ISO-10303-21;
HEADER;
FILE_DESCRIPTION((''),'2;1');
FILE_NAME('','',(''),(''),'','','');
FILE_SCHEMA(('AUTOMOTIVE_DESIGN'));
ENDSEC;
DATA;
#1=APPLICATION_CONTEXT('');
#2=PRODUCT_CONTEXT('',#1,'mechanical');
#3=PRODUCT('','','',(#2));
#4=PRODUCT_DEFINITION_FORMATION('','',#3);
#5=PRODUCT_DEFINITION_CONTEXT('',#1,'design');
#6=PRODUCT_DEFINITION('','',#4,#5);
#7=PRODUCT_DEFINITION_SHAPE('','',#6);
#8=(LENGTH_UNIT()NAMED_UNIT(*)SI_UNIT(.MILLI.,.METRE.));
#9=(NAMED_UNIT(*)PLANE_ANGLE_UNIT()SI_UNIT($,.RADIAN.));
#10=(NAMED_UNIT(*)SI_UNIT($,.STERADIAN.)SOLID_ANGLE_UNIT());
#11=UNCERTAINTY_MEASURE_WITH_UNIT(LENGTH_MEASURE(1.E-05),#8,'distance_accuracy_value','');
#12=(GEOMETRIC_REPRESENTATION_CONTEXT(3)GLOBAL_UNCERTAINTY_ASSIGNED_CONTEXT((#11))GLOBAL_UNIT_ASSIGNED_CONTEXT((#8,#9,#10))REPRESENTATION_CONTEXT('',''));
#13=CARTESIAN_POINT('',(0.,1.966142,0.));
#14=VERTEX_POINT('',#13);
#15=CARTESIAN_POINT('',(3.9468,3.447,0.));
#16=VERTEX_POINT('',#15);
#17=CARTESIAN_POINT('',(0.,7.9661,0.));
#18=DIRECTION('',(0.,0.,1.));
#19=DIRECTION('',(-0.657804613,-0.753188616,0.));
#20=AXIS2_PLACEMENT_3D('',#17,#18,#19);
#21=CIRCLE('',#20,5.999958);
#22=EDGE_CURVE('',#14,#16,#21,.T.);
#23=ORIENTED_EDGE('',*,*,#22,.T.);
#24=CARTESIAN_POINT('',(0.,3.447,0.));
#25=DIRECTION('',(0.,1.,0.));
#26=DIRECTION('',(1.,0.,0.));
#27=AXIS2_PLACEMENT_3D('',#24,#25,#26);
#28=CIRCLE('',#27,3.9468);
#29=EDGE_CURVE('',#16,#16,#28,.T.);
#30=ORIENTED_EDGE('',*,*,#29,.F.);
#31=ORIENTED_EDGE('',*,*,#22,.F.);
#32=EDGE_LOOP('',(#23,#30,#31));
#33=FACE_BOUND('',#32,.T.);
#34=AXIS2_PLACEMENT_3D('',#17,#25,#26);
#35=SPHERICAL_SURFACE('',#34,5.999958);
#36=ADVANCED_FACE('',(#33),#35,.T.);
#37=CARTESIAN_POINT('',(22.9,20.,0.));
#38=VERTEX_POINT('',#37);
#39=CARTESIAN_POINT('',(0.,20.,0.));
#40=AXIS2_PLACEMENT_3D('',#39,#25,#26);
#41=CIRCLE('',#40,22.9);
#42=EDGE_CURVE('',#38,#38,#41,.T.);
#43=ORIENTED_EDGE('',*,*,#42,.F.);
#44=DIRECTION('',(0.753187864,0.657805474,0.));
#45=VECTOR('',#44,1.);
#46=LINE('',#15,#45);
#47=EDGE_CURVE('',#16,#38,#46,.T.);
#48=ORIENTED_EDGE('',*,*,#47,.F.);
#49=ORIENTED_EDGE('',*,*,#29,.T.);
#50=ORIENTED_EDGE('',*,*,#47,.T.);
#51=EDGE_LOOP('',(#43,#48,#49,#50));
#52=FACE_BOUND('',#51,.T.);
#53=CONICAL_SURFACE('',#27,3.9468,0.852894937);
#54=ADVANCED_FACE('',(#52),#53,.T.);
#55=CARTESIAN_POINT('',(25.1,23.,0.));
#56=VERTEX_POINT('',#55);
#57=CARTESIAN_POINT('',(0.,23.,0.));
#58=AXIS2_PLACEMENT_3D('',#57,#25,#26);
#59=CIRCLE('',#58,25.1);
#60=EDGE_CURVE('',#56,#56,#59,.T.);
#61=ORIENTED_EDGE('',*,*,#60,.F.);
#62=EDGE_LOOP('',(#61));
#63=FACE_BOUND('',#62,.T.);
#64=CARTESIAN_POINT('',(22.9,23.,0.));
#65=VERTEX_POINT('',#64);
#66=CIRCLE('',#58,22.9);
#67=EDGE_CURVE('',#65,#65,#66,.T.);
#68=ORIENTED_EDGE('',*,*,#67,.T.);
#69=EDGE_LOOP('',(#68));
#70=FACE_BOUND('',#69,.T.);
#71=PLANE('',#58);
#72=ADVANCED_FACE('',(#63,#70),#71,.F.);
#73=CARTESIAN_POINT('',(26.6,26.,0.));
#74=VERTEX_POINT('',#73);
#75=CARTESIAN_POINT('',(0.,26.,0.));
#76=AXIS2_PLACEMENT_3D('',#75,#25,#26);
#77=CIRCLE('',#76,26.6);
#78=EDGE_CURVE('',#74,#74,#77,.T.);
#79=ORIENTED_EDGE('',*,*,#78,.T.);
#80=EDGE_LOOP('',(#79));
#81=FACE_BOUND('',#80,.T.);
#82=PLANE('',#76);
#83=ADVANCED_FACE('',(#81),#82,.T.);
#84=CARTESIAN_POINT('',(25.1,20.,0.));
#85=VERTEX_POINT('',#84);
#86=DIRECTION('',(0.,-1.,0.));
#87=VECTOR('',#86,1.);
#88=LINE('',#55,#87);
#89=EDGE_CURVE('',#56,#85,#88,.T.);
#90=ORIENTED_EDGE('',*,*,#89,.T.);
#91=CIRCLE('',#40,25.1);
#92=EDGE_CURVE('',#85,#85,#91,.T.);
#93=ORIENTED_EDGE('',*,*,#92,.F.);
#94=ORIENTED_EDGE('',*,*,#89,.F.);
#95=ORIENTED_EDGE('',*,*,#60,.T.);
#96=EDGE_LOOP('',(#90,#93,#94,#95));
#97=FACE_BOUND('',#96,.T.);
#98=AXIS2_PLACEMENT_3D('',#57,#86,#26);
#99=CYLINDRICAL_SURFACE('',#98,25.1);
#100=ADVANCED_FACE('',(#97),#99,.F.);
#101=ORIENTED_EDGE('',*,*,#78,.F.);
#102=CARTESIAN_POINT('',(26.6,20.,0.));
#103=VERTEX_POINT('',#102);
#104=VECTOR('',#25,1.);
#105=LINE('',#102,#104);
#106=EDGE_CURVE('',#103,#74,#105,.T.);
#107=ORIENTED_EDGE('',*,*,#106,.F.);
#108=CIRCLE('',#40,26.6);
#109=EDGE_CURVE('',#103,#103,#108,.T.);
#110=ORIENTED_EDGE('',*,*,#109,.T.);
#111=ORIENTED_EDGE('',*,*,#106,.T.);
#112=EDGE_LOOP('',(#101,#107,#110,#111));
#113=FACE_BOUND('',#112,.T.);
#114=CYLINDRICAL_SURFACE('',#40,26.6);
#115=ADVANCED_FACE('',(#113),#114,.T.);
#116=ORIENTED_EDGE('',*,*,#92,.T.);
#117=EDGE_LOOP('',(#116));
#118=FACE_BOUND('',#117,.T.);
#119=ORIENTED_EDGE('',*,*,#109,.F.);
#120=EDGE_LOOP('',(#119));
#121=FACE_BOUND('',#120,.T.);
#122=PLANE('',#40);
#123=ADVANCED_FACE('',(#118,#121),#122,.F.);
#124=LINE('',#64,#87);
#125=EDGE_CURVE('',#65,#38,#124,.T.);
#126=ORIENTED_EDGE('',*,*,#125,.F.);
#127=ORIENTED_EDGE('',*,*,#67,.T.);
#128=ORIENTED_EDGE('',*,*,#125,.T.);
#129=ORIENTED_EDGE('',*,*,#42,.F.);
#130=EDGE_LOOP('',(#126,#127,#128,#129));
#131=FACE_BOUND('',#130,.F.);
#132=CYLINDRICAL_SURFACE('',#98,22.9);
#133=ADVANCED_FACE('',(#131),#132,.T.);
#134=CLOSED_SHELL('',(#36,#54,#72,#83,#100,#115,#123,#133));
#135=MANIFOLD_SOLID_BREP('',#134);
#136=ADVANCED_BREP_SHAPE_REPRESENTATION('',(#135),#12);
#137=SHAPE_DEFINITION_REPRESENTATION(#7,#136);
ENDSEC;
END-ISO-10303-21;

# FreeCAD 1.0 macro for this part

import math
import FreeCAD as App
import Part
import Sketcher
Q = App.Units.Quantity

doc = App.newDocument("Part")
params = doc.addObject("Spreadsheet::Sheet", "Params")
for row, (alias, value) in enumerate([
    ("sketch1_radius", "6 mm"),
    ("sketch1_height", "3 mm"),
    ("sketch1_height2", "6 mm"),
    ("sketch1_width", "2.2 mm"),
    ("sketch1_width2", "1.5 mm"),
    ("revolution_angle", "360 deg"),
], start=1):
    params.set(f"A{row}", alias)
    params.set(f"B{row}", "=" + value)
    params.setAlias(f"B{row}", alias)

body = doc.addObject("PartDesign::Body", "Body")

sketch1 = body.newObject("Sketcher::SketchObject", "Sketch")
sketch1.AttachmentSupport = (doc.getObject("XY_Plane"), [""])
sketch1.MapMode = "FlatFace"
sketch1.addGeometry(Part.ArcOfCircle(Part.Circle(App.Vector(0, 8, 0), App.Vector(0, 0, 1), 6), math.radians(-90), math.radians(-49)), False)
sketch1.addGeometry(Part.LineSegment(App.Vector(3.9, 3.4, 0), App.Vector(22.9, 20, 0)), False)
sketch1.addGeometry(Part.LineSegment(App.Vector(22.9, 20, 0), App.Vector(22.9, 23, 0)), False)
sketch1.addGeometry(Part.LineSegment(App.Vector(22.9, 23, 0), App.Vector(25.1, 23, 0)), False)
sketch1.addGeometry(Part.LineSegment(App.Vector(25.1, 23, 0), App.Vector(25.1, 20, 0)), False)
sketch1.addGeometry(Part.LineSegment(App.Vector(25.1, 20, 0), App.Vector(26.6, 20, 0)), False)
sketch1.addGeometry(Part.LineSegment(App.Vector(26.6, 20, 0), App.Vector(26.6, 26, 0)), False)
sketch1.addGeometry(Part.LineSegment(App.Vector(26.6, 26, 0), App.Vector(0, 26, 0)), False)
sketch1.addGeometry(Part.LineSegment(App.Vector(0, 26, 0), App.Vector(0, 2, 0)), False)
sketch1.addConstraint(Sketcher.Constraint("Tangent", 0, 2, 1, 1))
sketch1.addConstraint(Sketcher.Constraint("Coincident", 1, 2, 2, 1))
sketch1.addConstraint(Sketcher.Constraint("Coincident", 2, 2, 3, 1))
sketch1.addConstraint(Sketcher.Constraint("Coincident", 3, 2, 4, 1))
sketch1.addConstraint(Sketcher.Constraint("Coincident", 4, 2, 5, 1))
sketch1.addConstraint(Sketcher.Constraint("Coincident", 5, 2, 6, 1))
sketch1.addConstraint(Sketcher.Constraint("Coincident", 6, 2, 7, 1))
sketch1.addConstraint(Sketcher.Constraint("Coincident", 7, 2, 8, 1))
sketch1.addConstraint(Sketcher.Constraint("Coincident", 8, 2, 0, 1))
sketch1.addConstraint(Sketcher.Constraint("Vertical", 2))
sketch1.addConstraint(Sketcher.Constraint("Horizontal", 3))
sketch1.addConstraint(Sketcher.Constraint("Vertical", 4))
sketch1.addConstraint(Sketcher.Constraint("Horizontal", 5))
sketch1.addConstraint(Sketcher.Constraint("Vertical", 6))
sketch1.addConstraint(Sketcher.Constraint("Horizontal", 7))
sketch1.addConstraint(Sketcher.Constraint("Vertical", 8))
sketch1.addConstraint(Sketcher.Constraint("PointOnObject", 0, 3, -2))
sketch1.addConstraint(Sketcher.Constraint("PointOnObject", 7, 2, -2))
sketch1.addConstraint(Sketcher.Constraint("Horizontal", 1, 2, 4, 2))
sketch1.addConstraint(Sketcher.Constraint("Radius", 0, Q("6 mm")))
sketch1.addConstraint(Sketcher.Constraint("DistanceY", 2, 1, 2, 2, Q("3 mm")))
sketch1.addConstraint(Sketcher.Constraint("DistanceY", 6, 1, 6, 2, Q("6 mm")))
sketch1.addConstraint(Sketcher.Constraint("DistanceX", 3, 1, 3, 2, Q("2.2 mm")))
sketch1.addConstraint(Sketcher.Constraint("DistanceX", 5, 1, 5, 2, Q("1.5 mm")))
sketch1.addConstraint(Sketcher.Constraint("DistanceY", -1, 1, 1, 2, Q("20 mm")))
sketch1.addConstraint(Sketcher.Constraint("DistanceX", 7, 2, 7, 1, Q("26.6 mm")))
sketch1.addConstraint(Sketcher.Constraint("Distance", 1, Q("25.164 mm")))
sketch1.setExpression("Constraints[19]", "Params.sketch1_radius")
sketch1.setExpression("Constraints[20]", "Params.sketch1_height")
sketch1.setExpression("Constraints[21]", "Params.sketch1_height2")
sketch1.setExpression("Constraints[22]", "Params.sketch1_width")
sketch1.setExpression("Constraints[23]", "Params.sketch1_width2")
revolution = body.newObject("PartDesign::Revolution", "Revolution")
revolution.Profile = sketch1
revolution.ReferenceAxis = (sketch1, ["V_Axis"])
revolution.setExpression("Angle", "Params.revolution_angle")

doc.recompute()
